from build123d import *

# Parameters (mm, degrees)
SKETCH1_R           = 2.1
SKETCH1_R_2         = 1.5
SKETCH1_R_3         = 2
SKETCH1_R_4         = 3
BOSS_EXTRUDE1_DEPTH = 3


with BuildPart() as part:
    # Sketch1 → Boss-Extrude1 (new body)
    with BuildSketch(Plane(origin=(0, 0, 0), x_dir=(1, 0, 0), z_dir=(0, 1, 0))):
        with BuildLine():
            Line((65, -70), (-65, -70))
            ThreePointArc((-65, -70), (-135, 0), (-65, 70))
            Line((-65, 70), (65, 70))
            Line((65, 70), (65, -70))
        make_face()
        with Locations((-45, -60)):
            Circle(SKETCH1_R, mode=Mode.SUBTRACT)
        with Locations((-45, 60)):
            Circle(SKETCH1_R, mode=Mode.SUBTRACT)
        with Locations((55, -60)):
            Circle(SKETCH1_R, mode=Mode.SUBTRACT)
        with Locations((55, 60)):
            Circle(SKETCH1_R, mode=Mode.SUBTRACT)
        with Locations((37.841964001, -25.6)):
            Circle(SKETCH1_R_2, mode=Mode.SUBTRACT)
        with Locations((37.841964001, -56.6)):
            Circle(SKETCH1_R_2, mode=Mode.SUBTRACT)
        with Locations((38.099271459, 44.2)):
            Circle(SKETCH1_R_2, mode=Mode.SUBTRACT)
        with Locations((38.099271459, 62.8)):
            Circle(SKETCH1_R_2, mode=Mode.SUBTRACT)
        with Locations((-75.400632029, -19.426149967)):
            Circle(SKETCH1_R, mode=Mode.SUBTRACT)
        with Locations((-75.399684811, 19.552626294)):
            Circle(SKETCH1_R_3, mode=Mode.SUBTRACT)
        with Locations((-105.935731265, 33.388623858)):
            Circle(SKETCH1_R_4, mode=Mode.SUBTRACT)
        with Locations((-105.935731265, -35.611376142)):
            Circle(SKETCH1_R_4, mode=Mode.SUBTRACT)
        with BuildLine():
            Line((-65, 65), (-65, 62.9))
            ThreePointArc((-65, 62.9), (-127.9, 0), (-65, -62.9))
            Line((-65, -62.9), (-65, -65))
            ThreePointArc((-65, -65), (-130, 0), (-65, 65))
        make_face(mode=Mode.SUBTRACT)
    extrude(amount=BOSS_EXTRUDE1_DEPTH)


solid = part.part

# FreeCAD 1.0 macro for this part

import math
import FreeCAD as App
import Part
import Sketcher

doc = App.newDocument("Part")
params = doc.addObject("Spreadsheet::Sheet", "Params")
for row, (alias, value) in enumerate([
    ("sketch1_diameter", "3 mm"),
    ("sketch1_diameter2", "6 mm"),
    ("sketch1_diameter3", "4 mm"),
    ("sketch1_radius", "70 mm"),
    ("sketch1_radius2", "65 mm"),
    ("pad1_length", "3 mm"),
], start=1):
    params.set(f"A{row}", alias)
    params.set(f"B{row}", "=" + value)
    params.setAlias(f"B{row}", alias)

body = doc.addObject("PartDesign::Body", "Body")

# Sketch on XZ plane
sketch1 = body.newObject("Sketcher::SketchObject", "Sketch")
sketch1.AttachmentSupport = (doc.getObject("XZ_Plane"), [""])
sketch1.MapMode = "FlatFace"
sketch1.addGeometry(Part.LineSegment(App.Vector(-65, 70, 0), App.Vector(65, 70, 0)), False)
sketch1.addGeometry(Part.LineSegment(App.Vector(65, 70, 0), App.Vector(65, -70, 0)), False)
sketch1.addGeometry(Part.LineSegment(App.Vector(65, -70, 0), App.Vector(-65, -70, 0)), False)
sketch1.addGeometry(Part.ArcOfCircle(Part.Circle(App.Vector(-65, 0, 0), App.Vector(0, 0, 1), 70), math.radians(90), math.radians(270)), False)
sketch1.addGeometry(Part.Circle(App.Vector(55, 60, 0), App.Vector(0, 0, 1), 2.1), False)
sketch1.addGeometry(Part.Circle(App.Vector(37.8, 56.6, 0), App.Vector(0, 0, 1), 1.5), False)
sketch1.addGeometry(Part.Circle(App.Vector(37.8, 25.6, 0), App.Vector(0, 0, 1), 1.5), False)
sketch1.addGeometry(Part.Circle(App.Vector(-45, 60, 0), App.Vector(0, 0, 1), 2.1), False)
sketch1.addGeometry(Part.Circle(App.Vector(-105.9, 35.6, 0), App.Vector(0, 0, 1), 3), False)
sketch1.addGeometry(Part.Circle(App.Vector(-75.4, 19.4, 0), App.Vector(0, 0, 1), 2.1), False)
sketch1.addGeometry(Part.Circle(App.Vector(38.1, -44.2, 0), App.Vector(0, 0, 1), 1.5), False)
sketch1.addGeometry(Part.Circle(App.Vector(55, -60, 0), App.Vector(0, 0, 1), 2.1), False)
sketch1.addGeometry(Part.Circle(App.Vector(38.1, -62.8, 0), App.Vector(0, 0, 1), 1.5), False)
sketch1.addGeometry(Part.Circle(App.Vector(-75.4, -19.6, 0), App.Vector(0, 0, 1), 2), False)
sketch1.addGeometry(Part.LineSegment(App.Vector(-65, -65, 0), App.Vector(-65, -62.9, 0)), False)
sketch1.addGeometry(Part.ArcOfCircle(Part.Circle(App.Vector(-65, 0, 0), App.Vector(0, 0, 1), 62.9), math.radians(90), math.radians(270)), False)
sketch1.addGeometry(Part.LineSegment(App.Vector(-65, 62.9, 0), App.Vector(-65, 65, 0)), False)
sketch1.addGeometry(Part.ArcOfCircle(Part.Circle(App.Vector(-65, 0, 0), App.Vector(0, 0, 1), 65), math.radians(90), math.radians(270)), False)
sketch1.addGeometry(Part.Circle(App.Vector(-45, -60, 0), App.Vector(0, 0, 1), 2.1), False)
sketch1.addGeometry(Part.Circle(App.Vector(-105.9, -33.4, 0), App.Vector(0, 0, 1), 3), False)
sketch1.addConstraint(Sketcher.Constraint("Coincident", 0, 2, 1, 1))
sketch1.addConstraint(Sketcher.Constraint("Coincident", 1, 2, 2, 1))
sketch1.addConstraint(Sketcher.Constraint("Tangent", 2, 2, 3, 2))
sketch1.addConstraint(Sketcher.Constraint("Tangent", 3, 1, 0, 1))
sketch1.addConstraint(Sketcher.Constraint("Coincident", 14, 2, 15, 2))
sketch1.addConstraint(Sketcher.Constraint("Coincident", 15, 1, 16, 1))
sketch1.addConstraint(Sketcher.Constraint("Coincident", 16, 2, 17, 1))
sketch1.addConstraint(Sketcher.Constraint("Coincident", 17, 2, 14, 1))
sketch1.addConstraint(Sketcher.Constraint("Horizontal", 0))
sketch1.addConstraint(Sketcher.Constraint("Vertical", 1))
sketch1.addConstraint(Sketcher.Constraint("Horizontal", 2))
sketch1.addConstraint(Sketcher.Constraint("Vertical", 14))
sketch1.addConstraint(Sketcher.Constraint("Vertical", 16))
sketch1.addConstraint(Sketcher.Constraint("Coincident", 15, 3, 3, 3))
sketch1.addConstraint(Sketcher.Constraint("Coincident", 17, 3, 3, 3))
sketch1.addConstraint(Sketcher.Constraint("Equal", 5, 6))
sketch1.addConstraint(Sketcher.Constraint("Equal", 4, 7))
sketch1.addConstraint(Sketcher.Constraint("Equal", 7, 9))
sketch1.addConstraint(Sketcher.Constraint("Equal", 6, 10))
sketch1.addConstraint(Sketcher.Constraint("Equal", 9, 11))
sketch1.addConstraint(Sketcher.Constraint("Equal", 10, 12))
sketch1.addConstraint(Sketcher.Constraint("Equal", 11, 18))
sketch1.addConstraint(Sketcher.Constraint("Equal", 8, 19))
sketch1.addConstraint(Sketcher.Constraint("Symmetric", 0, 2, 2, 2, -1, 1))
sketch1.addConstraint(Sketcher.Constraint("Symmetric", 4, 3, 11, 3, -1))
sketch1.addConstraint(Sketcher.Constraint("Symmetric", 7, 3, 18, 3, -1))
sketch1.addConstraint(Sketcher.Constraint("Horizontal", 4, 3, 7, 3))
sketch1.addConstraint(Sketcher.Constraint("Vertical", 5, 3, 6, 3))
sketch1.addConstraint(Sketcher.Constraint("Vertical", 10, 3, 12, 3))
sketch1.addConstraint(Sketcher.Constraint("Vertical", 8, 3, 19, 3))
sketch1.addConstraint(Sketcher.Constraint("Vertical", 3, 1, 14, 2))
sketch1.addConstraint(Sketcher.Constraint("Vertical", 14, 2, 15, 1))
sketch1.addConstraint(Sketcher.Constraint("Diameter", 5, 3.0))
sketch1.addConstraint(Sketcher.Constraint("Diameter", 8, 6.0))
sketch1.addConstraint(Sketcher.Constraint("Diameter", 13, 4.0))
sketch1.addConstraint(Sketcher.Constraint("Radius", 3, 70.0))
sketch1.addConstraint(Sketcher.Constraint("Radius", 17, 65.0))
sketch1.addConstraint(Sketcher.Constraint("Diameter", 4, 4.2))
sketch1.addConstraint(Sketcher.Constraint("Radius", 15, 62.9))
sketch1.addConstraint(Sketcher.Constraint("DistanceX", 0, 1, 0, 2, 130.0))
sketch1.addConstraint(Sketcher.Constraint("DistanceX", -1, 1, 4, 3, 55.0))
sketch1.addConstraint(Sketcher.Constraint("DistanceY", -1, 1, 4, 3, 60.0))
sketch1.addConstraint(Sketcher.Constraint("DistanceX", 7, 3, -1, 1, 45.0))
sketch1.addConstraint(Sketcher.Constraint("DistanceY", 6, 3, 5, 3, 31.0))
sketch1.addConstraint(Sketcher.Constraint("DistanceY", -1, 1, 5, 3, 56.6))
sketch1.addConstraint(Sketcher.Constraint("DistanceY", 10, 3, -1, 1, 44.2))
sketch1.addConstraint(Sketcher.Constraint("DistanceY", 12, 3, -1, 1, 62.8))
sketch1.addConstraint(Sketcher.Constraint("DistanceX", 8, 3, 9, 3, 30.535099))
sketch1.addConstraint(Sketcher.Constraint("DistanceX", 8, 3, -1, 1, 105.935731))
sketch1.addConstraint(Sketcher.Constraint("DistanceY", -1, 1, 9, 3, 19.42615))
sketch1.addConstraint(Sketcher.Constraint("DistanceX", -1, 1, 10, 3, 38.099271))
sketch1.addConstraint(Sketcher.Constraint("DistanceX", -1, 1, 5, 3, 37.841964))
sketch1.addConstraint(Sketcher.Constraint("DistanceY", -1, 1, 8, 3, 35.611376))
sketch1.addConstraint(Sketcher.Constraint("DistanceX", 13, 3, -1, 1, 75.399685))
sketch1.addConstraint(Sketcher.Constraint("DistanceY", 13, 3, -1, 1, 19.552626))
sketch1.addConstraint(Sketcher.Constraint("DistanceY", 19, 3, -1, 1, 33.388624))
sketch1.setExpression("Constraints[32]", "Params.sketch1_diameter")
sketch1.setExpression("Constraints[33]", "Params.sketch1_diameter2")
sketch1.setExpression("Constraints[34]", "Params.sketch1_diameter3")
sketch1.setExpression("Constraints[35]", "Params.sketch1_radius")
sketch1.setExpression("Constraints[36]", "Params.sketch1_radius2")
pad1 = body.newObject("PartDesign::Pad", "Pad")
pad1.Profile = sketch1
pad1.setExpression("Length", "Params.pad1_length")
pad1.Reversed = True

doc.recompute()
